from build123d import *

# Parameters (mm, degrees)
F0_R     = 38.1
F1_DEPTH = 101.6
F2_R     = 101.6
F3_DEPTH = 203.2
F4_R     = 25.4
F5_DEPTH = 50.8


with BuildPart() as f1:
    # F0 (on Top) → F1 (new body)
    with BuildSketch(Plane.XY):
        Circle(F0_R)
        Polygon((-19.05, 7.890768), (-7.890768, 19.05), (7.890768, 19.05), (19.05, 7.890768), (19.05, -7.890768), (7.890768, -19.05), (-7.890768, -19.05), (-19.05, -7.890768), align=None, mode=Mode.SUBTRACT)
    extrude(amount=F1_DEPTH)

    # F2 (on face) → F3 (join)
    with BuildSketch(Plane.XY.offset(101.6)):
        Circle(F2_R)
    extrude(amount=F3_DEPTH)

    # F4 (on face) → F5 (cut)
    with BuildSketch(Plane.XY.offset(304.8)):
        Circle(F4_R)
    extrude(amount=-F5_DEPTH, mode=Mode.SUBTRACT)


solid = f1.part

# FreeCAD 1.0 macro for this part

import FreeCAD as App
import Part
import Sketcher
Q = App.Units.Quantity


def add_polygon(sketch, points):
    """Adds a closed chain of lines whose ends are joined by coincident constraints."""
    first, n = sketch.GeometryCount, len(points)
    for a, b in zip(points, points[1:] + points[:1]):
        sketch.addGeometry(Part.LineSegment(App.Vector(*a, 0), App.Vector(*b, 0)), False)
    for i in range(n):
        sketch.addConstraint(Sketcher.Constraint("Coincident", first + i, 2, first + (i + 1) % n, 1))

doc = App.newDocument("Part")
params = doc.addObject("Spreadsheet::Sheet", "Params")
for row, (alias, value) in enumerate([
    ("sketch1_diameter", "3 in"),
    ("pad1_length", "4 in"),
    ("sketch2_diameter", "8 in"),
    ("pad2_length", "8 in"),
    ("sketch3_diameter", "2 in"),
    ("pocket1_length", "2 in"),
], start=1):
    params.set(f"A{row}", alias)
    params.set(f"B{row}", "=" + value)
    params.setAlias(f"B{row}", alias)

body = doc.addObject("PartDesign::Body", "Body")

sketch1 = body.newObject("Sketcher::SketchObject", "Sketch")
sketch1.AttachmentSupport = (doc.getObject("XY_Plane"), [""])
sketch1.MapMode = "FlatFace"
sketch1.addGeometry(Part.Circle(App.Vector(0, 0, 0), App.Vector(0, 0, 1), 38), False)
add_polygon(sketch1, [(-19, -8), (-19, 8), (-8, 19), (8, 19), (19, 8), (19, -8), (8, -19), (-8, -19)])
sketch1.addConstraint([
    Sketcher.Constraint("Vertical", 1),
    Sketcher.Constraint("Horizontal", 3),
    Sketcher.Constraint("Vertical", 5),
    Sketcher.Constraint("Horizontal", 7),
    Sketcher.Constraint("Coincident", 0, 3, -1, 1),
    Sketcher.Constraint("Symmetric", 1, 2, 5, 2, -1, 1),
    Sketcher.Constraint("Symmetric", 2, 2, 6, 2, -1, 1),
    Sketcher.Constraint("Perpendicular", 2, 4),
    Sketcher.Constraint("Perpendicular", 6, 8),
    Sketcher.Constraint("Horizontal", 1, 2, 4, 2),
    Sketcher.Constraint("Horizontal", 5, 2, 8, 2),
    Sketcher.Constraint("Vertical", 3, 2, 6, 2),
    Sketcher.Constraint("Equal", 7, 1),
    Sketcher.Constraint("Diameter", 0, Q("3 in")),
    Sketcher.Constraint("DistanceX", 1, 2, 4, 2, Q("1.5 in")),
    Sketcher.Constraint("DistanceX", 3, 1, 3, 2, 15.781536),
])
sketch1.setExpression("Constraints[21]", "Params.sketch1_diameter")
pad1 = body.newObject("PartDesign::Pad", "Pad")
pad1.Profile = sketch1
pad1.setExpression("Length", "Params.pad1_length")

sketch2 = body.newObject("Sketcher::SketchObject", "Sketch001")
sketch2.AttachmentSupport = (doc.getObject("XY_Plane"), [""])
sketch2.MapMode = "FlatFace"
sketch2.AttachmentOffset = App.Placement(App.Vector(0, 0, 4 * 25.4), App.Rotation())
sketch2.addGeometry(Part.Circle(App.Vector(0, 0, 0), App.Vector(0, 0, 1), 102), False)
sketch2.addConstraint([
    Sketcher.Constraint("Coincident", 0, 3, -1, 1),
    Sketcher.Constraint("Diameter", 0, Q("8 in")),
])
sketch2.setExpression("Constraints[1]", "Params.sketch2_diameter")
pad2 = body.newObject("PartDesign::Pad", "Pad001")
pad2.Profile = sketch2
pad2.setExpression("Length", "Params.pad2_length")

sketch3 = body.newObject("Sketcher::SketchObject", "Sketch002")
sketch3.AttachmentSupport = (doc.getObject("XY_Plane"), [""])
sketch3.MapMode = "FlatFace"
sketch3.AttachmentOffset = App.Placement(App.Vector(0, 0, 12 * 25.4), App.Rotation())
sketch3.addGeometry(Part.Circle(App.Vector(0, 0, 0), App.Vector(0, 0, 1), 25), False)
sketch3.addConstraint([
    Sketcher.Constraint("Coincident", 0, 3, -1, 1),
    Sketcher.Constraint("Diameter", 0, Q("2 in")),
])
sketch3.setExpression("Constraints[1]", "Params.sketch3_diameter")
pocket1 = body.newObject("PartDesign::Pocket", "Pocket")
pocket1.Profile = sketch3
pocket1.setExpression("Length", "Params.pocket1_length")

doc.recompute()
